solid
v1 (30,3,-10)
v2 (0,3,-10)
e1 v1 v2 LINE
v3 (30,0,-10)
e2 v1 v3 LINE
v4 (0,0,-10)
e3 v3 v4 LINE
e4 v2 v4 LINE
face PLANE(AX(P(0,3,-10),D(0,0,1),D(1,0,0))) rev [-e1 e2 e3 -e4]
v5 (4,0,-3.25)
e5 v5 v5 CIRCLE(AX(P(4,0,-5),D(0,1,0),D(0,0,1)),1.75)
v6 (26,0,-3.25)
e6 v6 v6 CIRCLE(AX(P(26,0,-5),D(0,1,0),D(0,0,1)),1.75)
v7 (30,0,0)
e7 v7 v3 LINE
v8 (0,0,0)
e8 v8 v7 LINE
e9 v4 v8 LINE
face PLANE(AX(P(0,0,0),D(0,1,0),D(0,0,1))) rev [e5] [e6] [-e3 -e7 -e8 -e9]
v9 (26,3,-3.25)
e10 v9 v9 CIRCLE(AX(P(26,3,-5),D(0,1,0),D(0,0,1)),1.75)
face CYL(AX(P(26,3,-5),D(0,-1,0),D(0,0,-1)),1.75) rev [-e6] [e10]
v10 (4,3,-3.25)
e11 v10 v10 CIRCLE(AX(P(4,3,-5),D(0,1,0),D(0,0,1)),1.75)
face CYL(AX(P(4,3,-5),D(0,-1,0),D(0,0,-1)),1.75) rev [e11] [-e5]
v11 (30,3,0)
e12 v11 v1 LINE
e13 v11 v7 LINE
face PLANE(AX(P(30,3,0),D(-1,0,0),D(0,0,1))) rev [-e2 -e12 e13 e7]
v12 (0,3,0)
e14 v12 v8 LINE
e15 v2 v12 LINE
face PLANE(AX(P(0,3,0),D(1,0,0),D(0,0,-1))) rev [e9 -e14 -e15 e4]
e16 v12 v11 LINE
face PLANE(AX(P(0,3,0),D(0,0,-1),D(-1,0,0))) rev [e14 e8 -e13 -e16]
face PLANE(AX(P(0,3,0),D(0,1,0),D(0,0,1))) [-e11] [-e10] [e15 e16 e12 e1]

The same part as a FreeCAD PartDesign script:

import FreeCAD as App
import Part
import Sketcher
from FreeCAD import Vector
Q = App.Units.Quantity

doc = App.newDocument("Part")
body = doc.addObject("PartDesign::Body", "Body")

# Sketch on XZ plane
sketch1 = doc.addObject("Sketcher::SketchObject", "Sketch")
body.addObject(sketch1)
sketch1.AttachmentSupport = (doc.XZ_Plane, [""])
sketch1.MapMode = "FlatFace"
sketch1.addGeometry([
    Part.LineSegment(Vector(0, -10, 0), Vector(0, 0, 0)),  # 0
    Part.LineSegment(Vector(0, 0, 0), Vector(30, 0, 0)),  # 1
    Part.LineSegment(Vector(30, 0, 0), Vector(30, -10, 0)),  # 2
    Part.LineSegment(Vector(30, -10, 0), Vector(0, -10, 0)),  # 3
    Part.Circle(Vector(4, -5, 0), Vector(0, 0, 1), 1.75),  # 4
    Part.Circle(Vector(26, -5, 0), Vector(0, 0, 1), 1.75),  # 5
], False)
sketch1.addConstraint([
    Sketcher.Constraint("Coincident", 0, 2, 1, 1),
    Sketcher.Constraint("Coincident", 1, 2, 2, 1),
    Sketcher.Constraint("Coincident", 2, 2, 3, 1),
    Sketcher.Constraint("Coincident", 3, 2, 0, 1),
    Sketcher.Constraint("Vertical", 0),
    Sketcher.Constraint("Horizontal", 1),
    Sketcher.Constraint("Vertical", 2),
    Sketcher.Constraint("Horizontal", 3),
    Sketcher.Constraint("Coincident", 0, 2, -1, 1),
    Sketcher.Constraint("Equal", 4, 5),
    Sketcher.Constraint("Horizontal", 4, 3, 5, 3),
    Sketcher.Constraint("Diameter", 4, Q("3.5 mm")),
    Sketcher.Constraint("DistanceX", 1, 1, 1, 2, Q("30 mm")),
    Sketcher.Constraint("DistanceY", 0, 1, 0, 2, Q("10 mm")),
    Sketcher.Constraint("DistanceX", -1, 1, 4, 3, Q("4 mm")),
    Sketcher.Constraint("DistanceY", 4, 3, -1, 1, Q("5 mm")),
    Sketcher.Constraint("DistanceX", -1, 1, 5, 3, Q("26 mm")),
])
pad1 = doc.addObject("PartDesign::Pad", "Pad")
body.addObject(pad1)
pad1.Profile = sketch1
pad1.Length = 3
pad1.Reversed = True

doc.recompute()
